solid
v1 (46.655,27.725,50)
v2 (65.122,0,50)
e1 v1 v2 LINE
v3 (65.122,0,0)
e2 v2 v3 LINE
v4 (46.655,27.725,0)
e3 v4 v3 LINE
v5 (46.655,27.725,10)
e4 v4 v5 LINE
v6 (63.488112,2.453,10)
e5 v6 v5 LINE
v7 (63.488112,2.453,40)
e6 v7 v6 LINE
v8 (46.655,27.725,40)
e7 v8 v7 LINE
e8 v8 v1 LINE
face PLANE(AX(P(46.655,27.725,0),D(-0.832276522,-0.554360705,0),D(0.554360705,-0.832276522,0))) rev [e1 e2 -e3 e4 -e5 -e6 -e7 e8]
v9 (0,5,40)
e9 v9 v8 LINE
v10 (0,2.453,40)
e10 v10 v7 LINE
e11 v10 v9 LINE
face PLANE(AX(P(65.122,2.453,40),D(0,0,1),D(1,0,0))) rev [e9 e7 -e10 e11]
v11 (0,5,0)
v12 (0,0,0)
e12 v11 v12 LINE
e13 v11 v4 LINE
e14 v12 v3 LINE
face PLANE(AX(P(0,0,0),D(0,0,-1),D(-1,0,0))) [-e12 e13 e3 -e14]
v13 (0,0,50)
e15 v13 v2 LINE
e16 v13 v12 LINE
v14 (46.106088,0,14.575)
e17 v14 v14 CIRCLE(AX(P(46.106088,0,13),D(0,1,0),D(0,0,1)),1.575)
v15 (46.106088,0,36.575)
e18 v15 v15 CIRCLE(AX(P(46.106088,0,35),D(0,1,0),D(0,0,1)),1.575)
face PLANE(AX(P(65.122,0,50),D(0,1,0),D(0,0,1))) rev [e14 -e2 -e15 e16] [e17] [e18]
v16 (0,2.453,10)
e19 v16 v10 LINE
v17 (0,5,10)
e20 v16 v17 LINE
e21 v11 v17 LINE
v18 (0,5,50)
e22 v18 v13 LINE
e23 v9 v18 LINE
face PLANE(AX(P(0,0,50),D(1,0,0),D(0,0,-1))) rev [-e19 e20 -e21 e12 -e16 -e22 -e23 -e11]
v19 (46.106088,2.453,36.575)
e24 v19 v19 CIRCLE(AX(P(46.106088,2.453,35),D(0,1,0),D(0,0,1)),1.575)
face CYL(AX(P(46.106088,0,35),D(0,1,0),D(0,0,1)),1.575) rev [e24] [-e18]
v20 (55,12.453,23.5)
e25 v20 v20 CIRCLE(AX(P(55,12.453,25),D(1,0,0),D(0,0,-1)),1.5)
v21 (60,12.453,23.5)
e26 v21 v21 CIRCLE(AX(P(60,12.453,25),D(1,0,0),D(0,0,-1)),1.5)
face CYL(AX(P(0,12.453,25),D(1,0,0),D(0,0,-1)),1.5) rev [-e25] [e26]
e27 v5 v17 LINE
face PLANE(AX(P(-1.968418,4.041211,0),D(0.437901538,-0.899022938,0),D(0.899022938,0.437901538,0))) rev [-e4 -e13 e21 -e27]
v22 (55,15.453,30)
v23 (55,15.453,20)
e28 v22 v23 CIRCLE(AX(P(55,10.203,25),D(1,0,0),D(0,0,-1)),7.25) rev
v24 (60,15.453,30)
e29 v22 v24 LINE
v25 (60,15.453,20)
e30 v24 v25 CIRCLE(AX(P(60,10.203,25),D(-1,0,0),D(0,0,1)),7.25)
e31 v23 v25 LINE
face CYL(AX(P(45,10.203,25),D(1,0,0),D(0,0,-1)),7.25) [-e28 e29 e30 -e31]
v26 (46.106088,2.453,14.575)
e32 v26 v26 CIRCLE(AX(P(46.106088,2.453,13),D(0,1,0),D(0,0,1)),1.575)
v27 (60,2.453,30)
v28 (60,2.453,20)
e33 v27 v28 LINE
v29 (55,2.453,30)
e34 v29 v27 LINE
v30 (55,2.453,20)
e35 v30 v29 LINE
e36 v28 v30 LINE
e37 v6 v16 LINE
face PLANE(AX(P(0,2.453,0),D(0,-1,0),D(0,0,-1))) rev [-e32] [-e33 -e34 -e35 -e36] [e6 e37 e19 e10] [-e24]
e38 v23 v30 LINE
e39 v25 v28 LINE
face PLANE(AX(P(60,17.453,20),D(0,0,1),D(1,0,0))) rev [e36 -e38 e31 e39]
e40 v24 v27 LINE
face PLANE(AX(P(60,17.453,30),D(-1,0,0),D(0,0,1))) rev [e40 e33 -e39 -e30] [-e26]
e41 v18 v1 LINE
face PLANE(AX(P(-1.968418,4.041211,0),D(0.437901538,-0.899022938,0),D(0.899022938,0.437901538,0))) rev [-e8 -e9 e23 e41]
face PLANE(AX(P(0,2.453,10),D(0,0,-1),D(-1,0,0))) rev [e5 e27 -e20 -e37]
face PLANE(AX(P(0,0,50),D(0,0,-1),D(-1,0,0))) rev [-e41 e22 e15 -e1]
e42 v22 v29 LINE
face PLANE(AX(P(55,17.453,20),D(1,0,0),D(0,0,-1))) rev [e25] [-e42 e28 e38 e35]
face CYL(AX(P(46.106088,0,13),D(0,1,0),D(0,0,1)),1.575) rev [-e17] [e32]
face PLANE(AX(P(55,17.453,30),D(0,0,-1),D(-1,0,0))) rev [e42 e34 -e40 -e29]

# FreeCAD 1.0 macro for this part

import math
import FreeCAD as App
import Part
import Sketcher
from FreeCAD import Vector
Q = App.Units.Quantity

doc = App.newDocument("Part")
body = doc.addObject("PartDesign::Body", "Body")

sketch1 = doc.addObject("Sketcher::SketchObject", "Sketch")
body.addObject(sketch1)
sketch1.AttachmentSupport = (doc.XY_Plane, [""])
sketch1.MapMode = "FlatFace"
sketch1.addGeometry([
    Part.LineSegment(Vector(0, 27.725, 0), Vector(0, 0, 0)),
    Part.LineSegment(Vector(0, 0, 0), Vector(65.122, 0, 0)),
    Part.LineSegment(Vector(65.122, 0, 0), Vector(65.122, 27.725, 0)),
    Part.LineSegment(Vector(65.122, 27.725, 0), Vector(0, 27.725, 0)),
], False)
sketch1.addConstraint([
    Sketcher.Constraint("Coincident", 0, 2, 1, 1),
    Sketcher.Constraint("Coincident", 1, 2, 2, 1),
    Sketcher.Constraint("Coincident", 2, 2, 3, 1),
    Sketcher.Constraint("Coincident", 3, 2, 0, 1),
    Sketcher.Constraint("Vertical", 0),
    Sketcher.Constraint("Horizontal", 1),
    Sketcher.Constraint("Vertical", 2),
    Sketcher.Constraint("Horizontal", 3),
    Sketcher.Constraint("Coincident", 0, 2, -1, 1),
    Sketcher.Constraint("DistanceX", 1, 1, 1, 2, Q("65.122 mm")),
    Sketcher.Constraint("DistanceY", 0, 2, 0, 1, Q("27.725 mm")),
])
pad1 = doc.addObject("PartDesign::Pad", "Pad")
body.addObject(pad1)
pad1.Profile = sketch1
pad1.Length = 50

sketch2 = doc.addObject("Sketcher::SketchObject", "Sketch001")
body.addObject(sketch2)
sketch2.AttachmentSupport = (doc.XZ_Plane, [""])
sketch2.MapMode = "FlatFace"
sketch2.AttachmentOffset = App.Placement(Vector(0, 0, -27.725), App.Rotation())
sketch2.addGeometry([
    Part.LineSegment(Vector(0, 10, 0), Vector(0, 40, 0)),
    Part.LineSegment(Vector(0, 40, 0), Vector(65.122, 40, 0)),
    Part.LineSegment(Vector(65.122, 40, 0), Vector(65.122, 10, 0)),
    Part.LineSegment(Vector(65.122, 10, 0), Vector(0, 10, 0)),
], False)
sketch2.addConstraint([
    Sketcher.Constraint("Coincident", 0, 2, 1, 1),
    Sketcher.Constraint("Coincident", 1, 2, 2, 1),
    Sketcher.Constraint("Coincident", 2, 2, 3, 1),
    Sketcher.Constraint("Coincident", 3, 2, 0, 1),
    Sketcher.Constraint("Vertical", 0),
    Sketcher.Constraint("Horizontal", 1),
    Sketcher.Constraint("Vertical", 2),
    Sketcher.Constraint("Horizontal", 3),
    Sketcher.Constraint("PointOnObject", 0, 2, -2),
    Sketcher.Constraint("DistanceY", 0, 1, 0, 2, Q("30 mm")),
    Sketcher.Constraint("DistanceY", -1, 1, 0, 2, Q("40 mm")),
    Sketcher.Constraint("DistanceX", 1, 1, 1, 2, Q("65.122 mm")),
])
pocket1 = doc.addObject("PartDesign::Pocket", "Pocket")
body.addObject(pocket1)
pocket1.Profile = sketch2
pocket1.Length = 25.272
pocket1.Reversed = True

sketch3 = doc.addObject("Sketcher::SketchObject", "Sketch002")
body.addObject(sketch3)
sketch3.AttachmentSupport = (doc.XY_Plane, [""])
sketch3.MapMode = "FlatFace"
sketch3.AttachmentOffset = App.Placement(Vector(0, 0, 50), App.Rotation())
sketch3.addGeometry([
    Part.LineSegment(Vector(0, 27.725, 0), Vector(0, 5, 0)),
    Part.LineSegment(Vector(0, 5, 0), Vector(46.655, 27.725, 0)),
    Part.LineSegment(Vector(46.655, 27.725, 0), Vector(0, 27.725, 0)),
], False)
sketch3.addConstraint([
    Sketcher.Constraint("Coincident", 0, 2, 1, 1),
    Sketcher.Constraint("Coincident", 1, 2, 2, 1),
    Sketcher.Constraint("Coincident", 2, 2, 0, 1),
    Sketcher.Constraint("Vertical", 0),
    Sketcher.Constraint("Horizontal", 2),
    Sketcher.Constraint("PointOnObject", 0, 2, -2),
    Sketcher.Constraint("DistanceY", -1, 1, 0, 2, Q("5 mm")),
    Sketcher.Constraint("DistanceX", 2, 2, 2, 1, Q("46.655 mm")),
    Sketcher.Constraint("DistanceY", 0, 2, 0, 1, Q("22.725 mm")),
])
pocket2 = doc.addObject("PartDesign::Pocket", "Pocket001")
body.addObject(pocket2)
pocket2.Profile = sketch3
pocket2.Type = "ThroughAll"

sketch4 = doc.addObject("Sketcher::SketchObject", "Sketch003")
body.addObject(sketch4)
sketch4.AttachmentSupport = (doc.XY_Plane, [""])
sketch4.MapMode = "FlatFace"
sketch4.AttachmentOffset = App.Placement(Vector(0, 0, 50), App.Rotation())
sketch4.addGeometry([
    Part.LineSegment(Vector(46.655, 27.725, 0), Vector(65.122, 0, 0)),
    Part.LineSegment(Vector(65.122, 0, 0), Vector(65.122, 27.725, 0)),
    Part.LineSegment(Vector(65.122, 27.725, 0), Vector(46.655, 27.725, 0)),
], False)
sketch4.addConstraint([
    Sketcher.Constraint("Coincident", 0, 2, 1, 1),
    Sketcher.Constraint("Coincident", 1, 2, 2, 1),
    Sketcher.Constraint("Coincident", 2, 2, 0, 1),
    Sketcher.Constraint("Vertical", 1),
    Sketcher.Constraint("Horizontal", 2),
    Sketcher.Constraint("PointOnObject", 0, 2, -1),
    Sketcher.Constraint("DistanceX", 2, 2, 2, 1, Q("18.467 mm")),
    Sketcher.Constraint("DistanceY", 1, 1, 1, 2, Q("27.725 mm")),
    Sketcher.Constraint("DistanceX", -1, 1, 0, 2, Q("65.122 mm")),
])
pocket3 = doc.addObject("PartDesign::Pocket", "Pocket002")
body.addObject(pocket3)
pocket3.Profile = sketch4
pocket3.Type = "ThroughAll"

sketch5 = doc.addObject("Sketcher::SketchObject", "Sketch004")
body.addObject(sketch5)
sketch5.AttachmentSupport = (doc.XZ_Plane, [""])
sketch5.MapMode = "FlatFace"
sketch5.AttachmentOffset = App.Placement(Vector(0, 0, -2.453), App.Rotation())
sketch5.addGeometry([
    Part.LineSegment(Vector(55, 20, 0), Vector(55, 30, 0)),
    Part.LineSegment(Vector(55, 30, 0), Vector(60, 30, 0)),
    Part.LineSegment(Vector(60, 30, 0), Vector(60, 20, 0)),
    Part.LineSegment(Vector(60, 20, 0), Vector(55, 20, 0)),
], False)
sketch5.addConstraint([
    Sketcher.Constraint("Coincident", 0, 2, 1, 1),
    Sketcher.Constraint("Coincident", 1, 2, 2, 1),
    Sketcher.Constraint("Coincident", 2, 2, 3, 1),
    Sketcher.Constraint("Coincident", 3, 2, 0, 1),
    Sketcher.Constraint("Vertical", 0),
    Sketcher.Constraint("Horizontal", 1),
    Sketcher.Constraint("Vertical", 2),
    Sketcher.Constraint("Horizontal", 3),
    Sketcher.Constraint("DistanceX", 1, 1, 1, 2, Q("5 mm")),
    Sketcher.Constraint("DistanceY", 0, 1, 0, 2, Q("10 mm")),
    Sketcher.Constraint("DistanceX", -1, 1, 0, 2, Q("55 mm")),
    Sketcher.Constraint("DistanceY", -1, 1, 0, 2, Q("30 mm")),
])
pad2 = doc.addObject("PartDesign::Pad", "Pad001")
body.addObject(pad2)
pad2.Profile = sketch5
pad2.Length = 15
pad2.Reversed = True

sketch6 = doc.addObject("Sketcher::SketchObject", "Sketch005")
body.addObject(sketch6)
sketch6.AttachmentSupport = (doc.YZ_Plane, [""])
sketch6.MapMode = "FlatFace"
sketch6.AttachmentOffset = App.Placement(Vector(0, 0, 60), App.Rotation())
sketch6.addGeometry([
    Part.LineSegment(Vector(17.453, 30, 0), Vector(15.453, 30, 0)),
    Part.ArcOfCircle(Part.Circle(Vector(10.203, 25, 0), Vector(0, 0, 1), 7.25), math.radians(-43.602819), math.radians(43.602819)),
    Part.LineSegment(Vector(15.453, 20, 0), Vector(17.453, 20, 0)),
    Part.LineSegment(Vector(17.453, 20, 0), Vector(17.831002, 24.889041, 0)),
    Part.LineSegment(Vector(17.831002, 24.889041, 0), Vector(17.453, 30, 0)),
], False)
sketch6.addConstraint([
    Sketcher.Constraint("Coincident", 0, 2, 1, 2),
    Sketcher.Constraint("Coincident", 1, 1, 2, 1),
    Sketcher.Constraint("Coincident", 2, 2, 3, 1),
    Sketcher.Constraint("Coincident", 3, 2, 4, 1),
    Sketcher.Constraint("Coincident", 4, 2, 0, 1),
    Sketcher.Constraint("Horizontal", 0),
    Sketcher.Constraint("Horizontal", 2),
    Sketcher.Constraint("Vertical", 0, 2, 1, 1),
    Sketcher.Constraint("Vertical", 2, 2, 4, 2),
    Sketcher.Constraint("DistanceX", 0, 2, 0, 1, Q("2 mm")),
    Sketcher.Constraint("Radius", 1, Q("7.25 mm")),
    Sketcher.Constraint("DistanceY", -1, 1, 1, 3, Q("25 mm")),
    Sketcher.Constraint("DistanceY", -1, 1, 0, 2, Q("30 mm")),
    Sketcher.Constraint("DistanceX", -1, 1, 1, 3, Q("10.203 mm")),
    Sketcher.Constraint("DistanceX", -1, 1, 3, 2, Q("17.831002 mm")),
    Sketcher.Constraint("Distance", 3, Q("4.903632 mm")),
])
pocket4 = doc.addObject("PartDesign::Pocket", "Pocket003")
body.addObject(pocket4)
pocket4.Profile = sketch6
pocket4.Length = 15

sketch7 = doc.addObject("Sketcher::SketchObject", "Sketch006")
body.addObject(sketch7)
sketch7.AttachmentSupport = (doc.YZ_Plane, [""])
sketch7.MapMode = "FlatFace"
sketch7.AttachmentOffset = App.Placement(Vector(0, 0, 60), App.Rotation())
sketch7.addGeometry(Part.Circle(Vector(12.453, 25, 0), Vector(0, 0, 1), 1.5), False)
sketch7.addConstraint([
    Sketcher.Constraint("Diameter", 0, Q("3 mm")),
    Sketcher.Constraint("DistanceY", -1, 1, 0, 3, Q("25 mm")),
    Sketcher.Constraint("DistanceX", -1, 1, 0, 3, Q("12.453 mm")),
])
pocket5 = doc.addObject("PartDesign::Pocket", "Pocket004")
body.addObject(pocket5)
pocket5.Profile = sketch7
pocket5.Type = "ThroughAll"

sketch8 = doc.addObject("Sketcher::SketchObject", "Sketch007")
body.addObject(sketch8)
sketch8.AttachmentSupport = (doc.XZ_Plane, [""])
sketch8.MapMode = "FlatFace"
sketch8.AttachmentOffset = App.Placement(Vector(0, 0, -2.453), App.Rotation())
sketch8.addGeometry([
    Part.Circle(Vector(46.106088, 35, 0), Vector(0, 0, 1), 1.575),
    Part.Circle(Vector(46.106088, 13, 0), Vector(0, 0, 1), 1.575),
], False)
sketch8.addConstraint([
    Sketcher.Constraint("Equal", 0, 1),
    Sketcher.Constraint("Vertical", 0, 3, 1, 3),
    Sketcher.Constraint("Diameter", 0, Q("3.15 mm")),
    Sketcher.Constraint("DistanceY", -1, 1, 0, 3, Q("35 mm")),
    Sketcher.Constraint("DistanceY", -1, 1, 1, 3, Q("13 mm")),
    Sketcher.Constraint("DistanceX", -1, 1, 0, 3, Q("46.106088 mm")),
])
pocket6 = doc.addObject("PartDesign::Pocket", "Pocket005")
body.addObject(pocket6)
pocket6.Profile = sketch8
pocket6.Type = "ThroughAll"
pocket6.Reversed = True

doc.recompute()
